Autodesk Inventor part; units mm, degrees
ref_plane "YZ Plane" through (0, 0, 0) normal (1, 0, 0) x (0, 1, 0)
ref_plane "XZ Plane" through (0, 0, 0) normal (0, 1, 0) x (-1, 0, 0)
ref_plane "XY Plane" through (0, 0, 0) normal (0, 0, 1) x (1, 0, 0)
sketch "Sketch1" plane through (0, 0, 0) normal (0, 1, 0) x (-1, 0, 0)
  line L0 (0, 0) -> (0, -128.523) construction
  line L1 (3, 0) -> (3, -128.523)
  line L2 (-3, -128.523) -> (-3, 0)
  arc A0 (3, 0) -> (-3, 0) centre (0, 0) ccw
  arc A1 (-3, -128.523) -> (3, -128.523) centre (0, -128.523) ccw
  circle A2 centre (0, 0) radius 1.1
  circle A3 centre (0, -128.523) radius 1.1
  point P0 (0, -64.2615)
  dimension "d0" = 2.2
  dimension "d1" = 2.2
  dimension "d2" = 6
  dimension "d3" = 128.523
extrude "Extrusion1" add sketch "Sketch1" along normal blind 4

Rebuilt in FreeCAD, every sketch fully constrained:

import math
import FreeCAD as App
import Part
import Sketcher
Q = App.Units.Quantity

doc = App.newDocument("Part")
body = doc.addObject("PartDesign::Body", "Body")

sketch1 = body.newObject("Sketcher::SketchObject", "Sketch")
sketch1.AttachmentSupport = (doc.getObject("XZ_Plane"), [""])
sketch1.MapMode = "FlatFace"
sketch1.addGeometry([
    Part.LineSegment(App.Vector(-3, -128.523, 0), App.Vector(-3, 0, 0)),
    Part.ArcOfCircle(Part.Circle(App.Vector(0, 0, 0), App.Vector(0, 0, 1), 3), math.radians(0), math.radians(180)),
    Part.LineSegment(App.Vector(3, 0, 0), App.Vector(3, -128.523, 0)),
    Part.ArcOfCircle(Part.Circle(App.Vector(0, -128.523, 0), App.Vector(0, 0, 1), 3), math.radians(180), math.radians(360)),
    Part.Circle(App.Vector(0, -128.523, 0), App.Vector(0, 0, 1), 1.1),
    Part.Circle(App.Vector(0, 0, 0), App.Vector(0, 0, 1), 1.1),
], False)
sketch1.addConstraint([
    Sketcher.Constraint("Tangent", 0, 2, 1, 2),
    Sketcher.Constraint("Tangent", 1, 1, 2, 1),
    Sketcher.Constraint("Tangent", 2, 2, 3, 2),
    Sketcher.Constraint("Tangent", 3, 1, 0, 1),
    Sketcher.Constraint("Vertical", 0),
    Sketcher.Constraint("Vertical", 2),
    Sketcher.Constraint("Coincident", 1, 3, -1, 1),
    Sketcher.Constraint("Coincident", 5, 3, -1, 1),
    Sketcher.Constraint("Coincident", 4, 3, 3, 3),
    Sketcher.Constraint("Equal", 4, 5),
    Sketcher.Constraint("Radius", 1, Q("3 mm")),
    Sketcher.Constraint("Diameter", 4, Q("2.2 mm")),
    Sketcher.Constraint("DistanceY", 0, 1, 0, 2, Q("128.523 mm")),
])
pad1 = body.newObject("PartDesign::Pad", "Pad")
pad1.Profile = sketch1
pad1.Length = 4
pad1.Reversed = True

doc.recompute()
